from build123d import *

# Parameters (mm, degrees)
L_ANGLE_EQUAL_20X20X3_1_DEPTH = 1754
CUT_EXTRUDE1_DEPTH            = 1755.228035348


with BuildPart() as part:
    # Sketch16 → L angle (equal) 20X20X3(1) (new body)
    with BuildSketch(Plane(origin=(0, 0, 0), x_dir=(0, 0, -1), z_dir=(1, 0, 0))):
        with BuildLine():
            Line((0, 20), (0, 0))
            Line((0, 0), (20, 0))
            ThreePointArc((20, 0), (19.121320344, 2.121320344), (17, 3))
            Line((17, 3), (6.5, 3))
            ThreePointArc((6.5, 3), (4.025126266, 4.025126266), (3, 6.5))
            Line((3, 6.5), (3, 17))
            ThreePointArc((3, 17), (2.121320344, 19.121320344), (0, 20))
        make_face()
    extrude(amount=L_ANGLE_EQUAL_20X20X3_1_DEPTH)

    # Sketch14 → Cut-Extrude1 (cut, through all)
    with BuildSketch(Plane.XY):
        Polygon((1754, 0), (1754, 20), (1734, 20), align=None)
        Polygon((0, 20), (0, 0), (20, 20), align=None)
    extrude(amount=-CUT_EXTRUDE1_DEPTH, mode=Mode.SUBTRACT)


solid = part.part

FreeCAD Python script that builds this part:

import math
import FreeCAD as App
import Part
import Sketcher

V = App.Vector
Q = App.Units.Quantity


def add_polygon(sketch, points):
    """Adds a closed chain of lines whose ends are joined by coincident constraints."""
    first, n = sketch.GeometryCount, len(points)
    for a, b in zip(points, points[1:] + points[:1]):
        sketch.addGeometry(Part.LineSegment(App.Vector(*a, 0), App.Vector(*b, 0)), False)
    for i in range(n):
        sketch.addConstraint(Sketcher.Constraint("Coincident", first + i, 2, first + (i + 1) % n, 1))

doc = App.newDocument("Part")
body = doc.addObject("PartDesign::Body", "Body")

sketch1 = body.newObject("Sketcher::SketchObject", "Sketch")
sketch1.AttachmentSupport = (doc.getObject("YZ_Plane"), [""])
sketch1.MapMode = "FlatFace"
sketch1.addGeometry([
    Part.LineSegment(V(20, 0, 0), V(0, 0, 0)),
    Part.LineSegment(V(0, 0, 0), V(0, -20, 0)),
    Part.ArcOfCircle(Part.Circle(V(0, -17, 0), V(0, 0, 1), 3), math.radians(-90), math.radians(0)),
    Part.LineSegment(V(3, -17, 0), V(3, -6.5, 0)),
    Part.ArcOfCircle(Part.Circle(V(6.5, -6.5, 0), V(0, 0, 1), 3.5), math.radians(90), math.radians(180)),
    Part.LineSegment(V(6.5, -3, 0), V(17, -3, 0)),
    Part.ArcOfCircle(Part.Circle(V(17, 0, 0), V(0, 0, 1), 3), math.radians(-90), math.radians(0)),
], False)
sketch1.addConstraint([
    Sketcher.Constraint("Coincident", 0, 2, 1, 1),
    Sketcher.Constraint("Coincident", 1, 2, 2, 1),
    Sketcher.Constraint("Tangent", 2, 2, 3, 1),
    Sketcher.Constraint("Tangent", 3, 2, 4, 2),
    Sketcher.Constraint("Tangent", 4, 1, 5, 1),
    Sketcher.Constraint("Tangent", 5, 2, 6, 1),
    Sketcher.Constraint("Coincident", 6, 2, 0, 1),
    Sketcher.Constraint("Horizontal", 0),
    Sketcher.Constraint("Vertical", 1),
    Sketcher.Constraint("Vertical", 3),
    Sketcher.Constraint("Horizontal", 5),
    Sketcher.Constraint("Coincident", 0, 2, -1, 1),
    Sketcher.Constraint("Equal", 2, 6),
    Sketcher.Constraint("PointOnObject", 2, 3, -2),
    Sketcher.Constraint("PointOnObject", 6, 3, -1),
    Sketcher.Constraint("Equal", 0, 1),
    Sketcher.Constraint("Radius", 2, Q("3 mm")),
    Sketcher.Constraint("Radius", 4, Q("3.5 mm")),
    Sketcher.Constraint("DistanceX", 0, 2, 0, 1, Q("20 mm")),
])
pad1 = body.newObject("PartDesign::Pad", "Pad")
pad1.Profile = sketch1
pad1.Length = 1754

sketch2 = body.newObject("Sketcher::SketchObject", "Sketch001")
sketch2.AttachmentSupport = (doc.getObject("XY_Plane"), [""])
sketch2.MapMode = "FlatFace"
add_polygon(sketch2, [(1754, 0), (1754, 20), (1734, 20)])
add_polygon(sketch2, [(0, 20), (0, 0), (20, 20)])
sketch2.addConstraint([
    Sketcher.Constraint("Vertical", 0),
    Sketcher.Constraint("Horizontal", 1),
    Sketcher.Constraint("Vertical", 3),
    Sketcher.Constraint("Horizontal", 5),
    Sketcher.Constraint("Coincident", 3, 2, -1, 1),
    Sketcher.Constraint("PointOnObject", 2, 2, -1),
    Sketcher.Constraint("Perpendicular", 2, 4),
    Sketcher.Constraint("Horizontal", 1, 2, 4, 2),
    Sketcher.Constraint("Equal", 1, 5),
    Sketcher.Constraint("DistanceX", 1, 2, 1, 1, Q("20 mm")),
    Sketcher.Constraint("DistanceX", -1, 1, 0, 2, Q("1754 mm")),
])
pocket1 = body.newObject("PartDesign::Pocket", "Pocket")
pocket1.Profile = sketch2
pocket1.Type = "ThroughAll"

doc.recompute()
